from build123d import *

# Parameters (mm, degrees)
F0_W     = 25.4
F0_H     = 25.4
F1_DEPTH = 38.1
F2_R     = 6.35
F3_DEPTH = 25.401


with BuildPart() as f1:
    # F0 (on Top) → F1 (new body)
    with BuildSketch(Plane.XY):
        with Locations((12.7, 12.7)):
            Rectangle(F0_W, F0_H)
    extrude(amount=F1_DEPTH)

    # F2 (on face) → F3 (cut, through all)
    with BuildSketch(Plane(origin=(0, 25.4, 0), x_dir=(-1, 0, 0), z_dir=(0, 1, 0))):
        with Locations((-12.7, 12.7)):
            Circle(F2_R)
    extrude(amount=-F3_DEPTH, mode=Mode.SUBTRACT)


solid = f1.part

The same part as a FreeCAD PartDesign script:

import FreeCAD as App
import Part
import Sketcher
from FreeCAD import Vector
Q = App.Units.Quantity


def add_polygon(sketch, points):
    """Adds a closed chain of lines whose ends are joined by coincident constraints."""
    first, n = sketch.GeometryCount, len(points)
    for a, b in zip(points, points[1:] + points[:1]):
        sketch.addGeometry(Part.LineSegment(App.Vector(*a, 0), App.Vector(*b, 0)), False)
    for i in range(n):
        sketch.addConstraint(Sketcher.Constraint("Coincident", first + i, 2, first + (i + 1) % n, 1))

doc = App.newDocument("Part")
params = doc.addObject("Spreadsheet::Sheet", "Params")
for row, (alias, value) in enumerate([
    ("sketch1_width", "1 in"),
    ("pad1_length", "1.5 in"),
    ("sketch2_diameter", "0.5 in"),
], start=1):
    params.set(f"A{row}", alias)
    params.set(f"B{row}", "=" + value)
    params.setAlias(f"B{row}", alias)

body = doc.addObject("PartDesign::Body", "Body")

sketch1 = body.newObject("Sketcher::SketchObject", "Sketch")
sketch1.AttachmentSupport = (doc.getObject("XY_Plane"), [""])
sketch1.MapMode = "FlatFace"
add_polygon(sketch1, [(0, 25), (0, 0), (25, 0), (25, 25)])
sketch1.addConstraint([
    Sketcher.Constraint("Vertical", 0),
    Sketcher.Constraint("Horizontal", 1),
    Sketcher.Constraint("Vertical", 2),
    Sketcher.Constraint("Horizontal", 3),
    Sketcher.Constraint("Coincident", 0, 2, -1, 1),
    Sketcher.Constraint("Equal", 3, 0),
    Sketcher.Constraint("DistanceX", 1, 1, 1, 2, Q("1 in")),
])
sketch1.setExpression("Constraints[10]", "Params.sketch1_width")
pad1 = body.newObject("PartDesign::Pad", "Pad")
pad1.Profile = sketch1
pad1.setExpression("Length", "Params.pad1_length")

sketch2 = body.newObject("Sketcher::SketchObject", "Sketch001")
sketch2.AttachmentSupport = (doc.getObject("XZ_Plane"), [""])
sketch2.MapMode = "FlatFace"
sketch2.AttachmentOffset = App.Placement(Vector(0, 0, -1 * 25.4), App.Rotation())
sketch2.addGeometry(Part.Circle(Vector(13, 13, 0), Vector(0, 0, 1), 6), False)
sketch2.addConstraint([
    Sketcher.Constraint("Diameter", 0, Q("0.5 in")),
    Sketcher.Constraint("DistanceX", -1, 1, 0, 3, Q("0.5 in")),
    Sketcher.Constraint("DistanceY", -1, 1, 0, 3, Q("0.5 in")),
])
sketch2.setExpression("Constraints[0]", "Params.sketch2_diameter")
pocket1 = body.newObject("PartDesign::Pocket", "Pocket")
pocket1.Profile = sketch2
pocket1.Type = "ThroughAll"
pocket1.Reversed = True

doc.recompute()
